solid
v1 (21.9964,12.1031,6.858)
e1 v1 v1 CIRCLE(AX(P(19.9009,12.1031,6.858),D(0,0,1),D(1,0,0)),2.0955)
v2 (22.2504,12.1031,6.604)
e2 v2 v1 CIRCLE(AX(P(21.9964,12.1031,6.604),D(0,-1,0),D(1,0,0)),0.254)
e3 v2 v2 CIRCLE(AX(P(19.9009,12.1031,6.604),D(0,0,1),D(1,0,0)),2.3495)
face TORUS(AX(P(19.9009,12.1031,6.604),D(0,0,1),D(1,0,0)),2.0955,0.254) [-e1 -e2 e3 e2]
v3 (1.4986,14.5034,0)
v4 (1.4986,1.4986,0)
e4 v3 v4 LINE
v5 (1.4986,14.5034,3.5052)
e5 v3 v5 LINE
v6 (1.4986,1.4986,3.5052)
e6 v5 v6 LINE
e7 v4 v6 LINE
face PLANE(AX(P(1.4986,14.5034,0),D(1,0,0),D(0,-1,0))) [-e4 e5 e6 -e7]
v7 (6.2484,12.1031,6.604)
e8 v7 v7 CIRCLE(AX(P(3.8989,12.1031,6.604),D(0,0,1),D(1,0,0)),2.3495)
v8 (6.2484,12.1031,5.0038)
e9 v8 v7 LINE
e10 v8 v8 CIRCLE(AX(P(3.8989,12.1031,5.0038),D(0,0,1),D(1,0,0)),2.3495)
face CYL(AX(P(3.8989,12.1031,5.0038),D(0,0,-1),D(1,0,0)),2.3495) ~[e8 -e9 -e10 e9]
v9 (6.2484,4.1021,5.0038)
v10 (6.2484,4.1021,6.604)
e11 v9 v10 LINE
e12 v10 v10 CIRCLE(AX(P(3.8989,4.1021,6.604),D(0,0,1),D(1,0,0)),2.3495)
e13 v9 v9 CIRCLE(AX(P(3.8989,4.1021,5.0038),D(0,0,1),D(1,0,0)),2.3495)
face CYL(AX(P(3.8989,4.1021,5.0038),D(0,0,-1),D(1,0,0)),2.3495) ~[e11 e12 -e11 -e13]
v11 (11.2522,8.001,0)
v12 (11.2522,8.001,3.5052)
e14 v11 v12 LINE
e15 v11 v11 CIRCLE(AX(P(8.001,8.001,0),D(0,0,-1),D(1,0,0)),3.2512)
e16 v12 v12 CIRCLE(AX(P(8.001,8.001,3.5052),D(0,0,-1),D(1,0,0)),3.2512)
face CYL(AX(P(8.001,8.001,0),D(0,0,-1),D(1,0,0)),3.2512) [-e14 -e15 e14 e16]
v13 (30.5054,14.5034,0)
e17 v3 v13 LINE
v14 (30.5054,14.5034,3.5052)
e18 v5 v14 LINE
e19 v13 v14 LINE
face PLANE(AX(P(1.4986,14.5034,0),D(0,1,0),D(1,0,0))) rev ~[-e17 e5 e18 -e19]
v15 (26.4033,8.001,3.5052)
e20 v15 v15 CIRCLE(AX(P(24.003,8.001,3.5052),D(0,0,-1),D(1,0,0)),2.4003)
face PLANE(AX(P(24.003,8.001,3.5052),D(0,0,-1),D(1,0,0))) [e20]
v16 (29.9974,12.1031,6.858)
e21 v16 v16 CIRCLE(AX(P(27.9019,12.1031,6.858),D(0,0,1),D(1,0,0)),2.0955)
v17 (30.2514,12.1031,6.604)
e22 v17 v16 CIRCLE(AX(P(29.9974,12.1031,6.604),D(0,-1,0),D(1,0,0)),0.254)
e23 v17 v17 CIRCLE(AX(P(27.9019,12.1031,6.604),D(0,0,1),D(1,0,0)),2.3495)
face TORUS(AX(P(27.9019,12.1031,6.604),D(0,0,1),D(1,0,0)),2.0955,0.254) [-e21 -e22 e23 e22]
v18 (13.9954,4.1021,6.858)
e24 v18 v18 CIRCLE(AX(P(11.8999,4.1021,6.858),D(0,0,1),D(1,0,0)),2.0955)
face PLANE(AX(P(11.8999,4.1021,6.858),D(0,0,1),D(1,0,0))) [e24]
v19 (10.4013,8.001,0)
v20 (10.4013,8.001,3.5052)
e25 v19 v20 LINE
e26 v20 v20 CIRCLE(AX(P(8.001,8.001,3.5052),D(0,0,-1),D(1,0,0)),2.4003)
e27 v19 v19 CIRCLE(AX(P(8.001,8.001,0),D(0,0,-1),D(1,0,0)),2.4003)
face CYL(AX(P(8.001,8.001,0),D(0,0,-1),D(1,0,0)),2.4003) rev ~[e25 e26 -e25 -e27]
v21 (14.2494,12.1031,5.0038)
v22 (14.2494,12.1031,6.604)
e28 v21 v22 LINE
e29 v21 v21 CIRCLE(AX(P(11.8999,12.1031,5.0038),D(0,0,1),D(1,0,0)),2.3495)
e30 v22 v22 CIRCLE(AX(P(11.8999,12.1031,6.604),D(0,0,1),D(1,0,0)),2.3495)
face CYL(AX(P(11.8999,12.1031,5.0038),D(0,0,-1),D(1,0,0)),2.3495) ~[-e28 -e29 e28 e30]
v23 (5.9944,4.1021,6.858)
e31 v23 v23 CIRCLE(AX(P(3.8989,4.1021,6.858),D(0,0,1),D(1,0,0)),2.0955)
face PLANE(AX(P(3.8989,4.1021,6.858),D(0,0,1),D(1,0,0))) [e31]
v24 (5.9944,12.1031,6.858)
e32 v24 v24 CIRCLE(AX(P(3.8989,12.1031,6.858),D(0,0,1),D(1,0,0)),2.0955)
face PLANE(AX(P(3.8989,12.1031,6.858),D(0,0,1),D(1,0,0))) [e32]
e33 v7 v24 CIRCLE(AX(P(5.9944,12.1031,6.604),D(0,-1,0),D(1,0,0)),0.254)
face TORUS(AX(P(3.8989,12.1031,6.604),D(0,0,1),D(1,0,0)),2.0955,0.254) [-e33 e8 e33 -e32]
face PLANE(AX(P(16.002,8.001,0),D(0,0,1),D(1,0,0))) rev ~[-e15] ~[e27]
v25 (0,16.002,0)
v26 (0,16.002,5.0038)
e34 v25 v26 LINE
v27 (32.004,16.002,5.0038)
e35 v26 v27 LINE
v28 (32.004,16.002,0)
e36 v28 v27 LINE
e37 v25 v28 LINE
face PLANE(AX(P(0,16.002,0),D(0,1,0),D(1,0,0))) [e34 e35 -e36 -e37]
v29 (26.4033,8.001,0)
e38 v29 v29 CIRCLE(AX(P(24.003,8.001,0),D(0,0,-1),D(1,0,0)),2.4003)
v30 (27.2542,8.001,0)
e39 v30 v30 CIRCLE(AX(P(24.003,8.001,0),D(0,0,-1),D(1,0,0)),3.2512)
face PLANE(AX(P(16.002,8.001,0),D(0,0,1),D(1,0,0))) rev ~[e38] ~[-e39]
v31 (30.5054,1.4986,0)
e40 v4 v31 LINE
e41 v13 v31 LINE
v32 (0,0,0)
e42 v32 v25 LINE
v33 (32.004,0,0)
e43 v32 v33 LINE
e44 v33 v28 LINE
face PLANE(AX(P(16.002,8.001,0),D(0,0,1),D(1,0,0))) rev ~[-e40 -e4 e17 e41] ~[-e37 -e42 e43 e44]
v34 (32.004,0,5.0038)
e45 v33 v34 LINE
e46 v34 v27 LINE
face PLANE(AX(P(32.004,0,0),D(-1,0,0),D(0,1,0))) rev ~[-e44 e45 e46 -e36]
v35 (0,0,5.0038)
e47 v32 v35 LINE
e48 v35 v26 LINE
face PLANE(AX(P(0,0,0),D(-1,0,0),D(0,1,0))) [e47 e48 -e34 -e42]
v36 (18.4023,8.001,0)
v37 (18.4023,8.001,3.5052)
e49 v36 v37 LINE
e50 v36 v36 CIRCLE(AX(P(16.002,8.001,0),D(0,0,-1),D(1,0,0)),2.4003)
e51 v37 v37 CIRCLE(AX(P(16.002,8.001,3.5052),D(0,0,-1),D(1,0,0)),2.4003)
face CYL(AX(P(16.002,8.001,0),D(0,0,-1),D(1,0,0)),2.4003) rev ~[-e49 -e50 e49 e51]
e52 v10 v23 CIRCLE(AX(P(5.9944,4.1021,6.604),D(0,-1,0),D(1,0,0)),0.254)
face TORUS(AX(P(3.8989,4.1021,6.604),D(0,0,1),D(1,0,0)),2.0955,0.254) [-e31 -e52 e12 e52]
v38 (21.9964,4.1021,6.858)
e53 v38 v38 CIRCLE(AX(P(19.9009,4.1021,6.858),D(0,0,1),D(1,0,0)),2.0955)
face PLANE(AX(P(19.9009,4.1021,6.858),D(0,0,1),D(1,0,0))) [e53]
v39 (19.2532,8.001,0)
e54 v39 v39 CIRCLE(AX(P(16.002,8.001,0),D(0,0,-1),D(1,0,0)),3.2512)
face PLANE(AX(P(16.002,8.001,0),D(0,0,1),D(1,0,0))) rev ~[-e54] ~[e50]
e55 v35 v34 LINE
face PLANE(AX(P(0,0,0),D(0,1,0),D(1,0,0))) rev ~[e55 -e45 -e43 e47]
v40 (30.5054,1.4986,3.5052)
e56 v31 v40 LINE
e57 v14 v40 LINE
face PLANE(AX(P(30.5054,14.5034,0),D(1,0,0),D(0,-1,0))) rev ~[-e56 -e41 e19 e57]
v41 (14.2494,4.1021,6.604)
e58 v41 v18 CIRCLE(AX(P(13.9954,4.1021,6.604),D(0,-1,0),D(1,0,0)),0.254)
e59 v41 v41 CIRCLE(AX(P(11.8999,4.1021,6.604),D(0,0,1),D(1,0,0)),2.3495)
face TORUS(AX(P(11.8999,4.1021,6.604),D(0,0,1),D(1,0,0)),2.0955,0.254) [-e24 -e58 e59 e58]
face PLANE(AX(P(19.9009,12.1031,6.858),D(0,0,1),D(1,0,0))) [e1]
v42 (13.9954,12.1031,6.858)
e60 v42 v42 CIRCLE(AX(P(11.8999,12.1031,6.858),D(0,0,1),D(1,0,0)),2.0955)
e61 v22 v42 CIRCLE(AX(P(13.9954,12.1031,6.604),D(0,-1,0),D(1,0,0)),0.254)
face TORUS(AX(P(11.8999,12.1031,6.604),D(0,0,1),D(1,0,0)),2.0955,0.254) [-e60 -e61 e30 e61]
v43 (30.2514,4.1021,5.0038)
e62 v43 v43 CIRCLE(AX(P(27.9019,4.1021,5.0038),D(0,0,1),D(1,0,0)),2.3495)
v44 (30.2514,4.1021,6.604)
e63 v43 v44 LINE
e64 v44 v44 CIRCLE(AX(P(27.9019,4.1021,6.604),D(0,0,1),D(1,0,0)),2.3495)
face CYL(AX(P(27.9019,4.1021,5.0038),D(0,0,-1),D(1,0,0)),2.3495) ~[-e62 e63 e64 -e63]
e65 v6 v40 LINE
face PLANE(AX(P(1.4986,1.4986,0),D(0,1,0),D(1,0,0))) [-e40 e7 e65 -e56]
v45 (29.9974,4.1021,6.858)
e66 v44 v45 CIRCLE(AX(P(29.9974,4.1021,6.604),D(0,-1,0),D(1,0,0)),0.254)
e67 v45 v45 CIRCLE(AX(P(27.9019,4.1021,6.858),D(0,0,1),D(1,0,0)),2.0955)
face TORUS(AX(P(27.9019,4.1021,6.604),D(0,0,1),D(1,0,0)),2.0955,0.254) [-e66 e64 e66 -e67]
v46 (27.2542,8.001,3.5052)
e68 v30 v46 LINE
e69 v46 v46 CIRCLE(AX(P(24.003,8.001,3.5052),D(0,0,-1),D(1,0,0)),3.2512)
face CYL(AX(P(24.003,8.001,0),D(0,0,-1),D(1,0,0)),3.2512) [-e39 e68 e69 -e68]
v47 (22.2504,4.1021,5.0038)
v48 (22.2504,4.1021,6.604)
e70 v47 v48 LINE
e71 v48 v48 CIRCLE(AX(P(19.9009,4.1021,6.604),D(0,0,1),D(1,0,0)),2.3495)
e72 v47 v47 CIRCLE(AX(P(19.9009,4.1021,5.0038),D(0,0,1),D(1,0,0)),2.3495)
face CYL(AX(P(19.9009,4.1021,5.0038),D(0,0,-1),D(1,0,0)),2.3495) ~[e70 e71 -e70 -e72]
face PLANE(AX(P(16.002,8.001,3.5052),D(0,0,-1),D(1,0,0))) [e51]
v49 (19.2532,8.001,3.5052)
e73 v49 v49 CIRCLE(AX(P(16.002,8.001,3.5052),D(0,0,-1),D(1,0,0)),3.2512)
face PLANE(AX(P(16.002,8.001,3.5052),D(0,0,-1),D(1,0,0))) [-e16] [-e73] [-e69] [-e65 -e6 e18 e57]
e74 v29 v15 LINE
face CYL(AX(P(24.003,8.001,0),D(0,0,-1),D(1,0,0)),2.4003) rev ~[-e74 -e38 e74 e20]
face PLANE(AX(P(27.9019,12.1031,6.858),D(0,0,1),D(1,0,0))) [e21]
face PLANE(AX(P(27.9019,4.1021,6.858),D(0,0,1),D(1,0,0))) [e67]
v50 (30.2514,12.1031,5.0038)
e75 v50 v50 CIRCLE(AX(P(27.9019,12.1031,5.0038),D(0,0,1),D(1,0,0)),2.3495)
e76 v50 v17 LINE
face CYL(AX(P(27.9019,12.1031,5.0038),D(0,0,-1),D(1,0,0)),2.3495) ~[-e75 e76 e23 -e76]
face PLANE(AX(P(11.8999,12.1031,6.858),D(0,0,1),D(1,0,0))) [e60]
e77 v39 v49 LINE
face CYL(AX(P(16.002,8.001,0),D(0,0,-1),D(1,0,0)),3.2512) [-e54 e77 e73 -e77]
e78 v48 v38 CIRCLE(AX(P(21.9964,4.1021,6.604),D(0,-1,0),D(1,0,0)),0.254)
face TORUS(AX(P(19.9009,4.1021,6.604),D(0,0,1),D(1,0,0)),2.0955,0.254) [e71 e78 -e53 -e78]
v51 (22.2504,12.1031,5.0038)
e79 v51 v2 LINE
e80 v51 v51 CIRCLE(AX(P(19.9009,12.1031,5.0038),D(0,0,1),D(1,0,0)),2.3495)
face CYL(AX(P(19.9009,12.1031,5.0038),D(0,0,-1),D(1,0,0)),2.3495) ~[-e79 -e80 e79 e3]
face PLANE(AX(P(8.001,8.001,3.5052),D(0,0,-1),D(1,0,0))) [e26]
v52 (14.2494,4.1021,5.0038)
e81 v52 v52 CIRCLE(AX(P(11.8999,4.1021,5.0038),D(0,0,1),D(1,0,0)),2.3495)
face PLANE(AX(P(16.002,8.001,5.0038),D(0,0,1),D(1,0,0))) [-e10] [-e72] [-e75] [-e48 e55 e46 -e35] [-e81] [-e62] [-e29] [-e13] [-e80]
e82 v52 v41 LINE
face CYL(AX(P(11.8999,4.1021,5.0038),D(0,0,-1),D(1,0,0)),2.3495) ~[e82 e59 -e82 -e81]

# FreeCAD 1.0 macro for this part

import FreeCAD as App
import Part
import Sketcher
from FreeCAD import Vector
Q = App.Units.Quantity


def edges_at(feature, points):
    """Names of the edges that pass closest to the given points."""
    edges = feature.Shape.Edges
    near = lambda p: min(range(len(edges)), key=lambda i: edges[i].distToShape(Part.Vertex(*p))[0])
    return sorted({f"Edge{near(p) + 1}" for p in points})


def add_polygon(sketch, points):
    """Adds a closed chain of lines whose ends are joined by coincident constraints."""
    first, n = sketch.GeometryCount, len(points)
    for a, b in zip(points, points[1:] + points[:1]):
        sketch.addGeometry(Part.LineSegment(App.Vector(*a, 0), App.Vector(*b, 0)), False)
    for i in range(n):
        sketch.addConstraint(Sketcher.Constraint("Coincident", first + i, 2, first + (i + 1) % n, 1))

doc = App.newDocument("Part")
body = doc.addObject("PartDesign::Body", "Body")

sketch1 = body.newObject("Sketcher::SketchObject", "Sketch")
sketch1.AttachmentSupport = (doc.getObject("XY_Plane"), [""])
sketch1.MapMode = "FlatFace"
add_polygon(sketch1, [(0, 16), (0, 0), (32, 0), (32, 16)])
sketch1.addConstraint([
    Sketcher.Constraint("Vertical", 0),
    Sketcher.Constraint("Horizontal", 1),
    Sketcher.Constraint("Vertical", 2),
    Sketcher.Constraint("Horizontal", 3),
    Sketcher.Constraint("Coincident", 0, 2, -1, 1),
    Sketcher.Constraint("DistanceX", 1, 1, 1, 2, Q("1.26 in")),
    Sketcher.Constraint("DistanceY", 0, 2, 0, 1, Q("0.63 in")),
])
pad1 = body.newObject("PartDesign::Pad", "Pad")
pad1.Profile = sketch1
pad1.Length = Q("0.197 in")

sketch2 = body.newObject("Sketcher::SketchObject", "Sketch001")
sketch2.AttachmentSupport = (doc.getObject("XY_Plane"), [""])
sketch2.MapMode = "FlatFace"
sketch2.AttachmentOffset = App.Placement(Vector(0, 0, 0.197 * 25.4), App.Rotation())
sketch2.addGeometry([
    Part.Circle(Vector(3.9, 4.1, 0), Vector(0, 0, 1), 2.3),
    Part.Circle(Vector(11.9, 4.1, 0), Vector(0, 0, 1), 2.3),
    Part.Circle(Vector(19.9, 4.1, 0), Vector(0, 0, 1), 2.3),
    Part.Circle(Vector(3.9, 12.1, 0), Vector(0, 0, 1), 2.3),
    Part.Circle(Vector(11.9, 12.1, 0), Vector(0, 0, 1), 2.3),
    Part.Circle(Vector(19.9, 12.1, 0), Vector(0, 0, 1), 2.3),
    Part.Circle(Vector(27.9, 12.1, 0), Vector(0, 0, 1), 2.3),
    Part.Circle(Vector(27.9, 4.1, 0), Vector(0, 0, 1), 2.3),
], False)
sketch2.addConstraint([
    Sketcher.Constraint("Equal", 0, 1),
    Sketcher.Constraint("Equal", 1, 2),
    Sketcher.Constraint("Equal", 2, 3),
    Sketcher.Constraint("Equal", 3, 4),
    Sketcher.Constraint("Equal", 4, 5),
    Sketcher.Constraint("Equal", 5, 6),
    Sketcher.Constraint("Equal", 6, 7),
    Sketcher.Constraint("Horizontal", 0, 3, 1, 3),
    Sketcher.Constraint("Horizontal", 1, 3, 2, 3),
    Sketcher.Constraint("Horizontal", 3, 3, 4, 3),
    Sketcher.Constraint("Horizontal", 4, 3, 5, 3),
    Sketcher.Constraint("Horizontal", 5, 3, 6, 3),
    Sketcher.Constraint("Horizontal", 2, 3, 7, 3),
    Sketcher.Constraint("Vertical", 0, 3, 3, 3),
    Sketcher.Constraint("Vertical", 1, 3, 4, 3),
    Sketcher.Constraint("Vertical", 2, 3, 5, 3),
    Sketcher.Constraint("Vertical", 6, 3, 7, 3),
    Sketcher.Constraint("Diameter", 0, Q("0.185 in")),
    Sketcher.Constraint("DistanceX", 0, 3, 2, 3, Q("0.63 in")),
    Sketcher.Constraint("DistanceX", 4, 3, 6, 3, Q("0.63 in")),
    Sketcher.Constraint("DistanceX", 0, 3, 1, 3, Q("0.315 in")),
    Sketcher.Constraint("DistanceY", 0, 3, 3, 3, Q("0.315 in")),
    Sketcher.Constraint("DistanceX", -1, 1, 0, 3, Q("0.1535 in")),
    Sketcher.Constraint("DistanceY", -1, 1, 0, 3, Q("0.1615 in")),
])
pad2 = body.newObject("PartDesign::Pad", "Pad001")
pad2.Profile = sketch2
pad2.Length = Q("0.073 in")
doc.recompute()

fillet = body.newObject("PartDesign::Fillet", "Fillet")
fillet.Base = (pad2, edges_at(pad2, [
    (1.549, 4.102, 6.858),
    (9.55, 4.102, 6.858),
    (17.551, 4.102, 6.858),
    (25.552, 4.102, 6.858),
    (25.552, 12.103, 6.858),
    (17.551, 12.103, 6.858),
    (9.55, 12.103, 6.858),
    (1.549, 12.103, 6.858),
]))
fillet.Radius = Q("0.01 in")

sketch3 = body.newObject("Sketcher::SketchObject", "Sketch002")
sketch3.AttachmentSupport = (doc.getObject("XY_Plane"), [""])
sketch3.MapMode = "FlatFace"
add_polygon(sketch3, [(1.5, 1.5), (1.5, 14.5), (30.5, 14.5), (30.5, 1.5)])
sketch3.addGeometry(Part.Circle(Vector(8, 8, 0), Vector(0, 0, 1), 3.3), False)
sketch3.addGeometry(Part.Circle(Vector(16, 8, 0), Vector(0, 0, 1), 3.3), False)
sketch3.addGeometry(Part.Circle(Vector(24, 8, 0), Vector(0, 0, 1), 3.3), False)
sketch3.addGeometry(Part.Circle(Vector(24, 8, 0), Vector(0, 0, 1), 2.4), False)
sketch3.addGeometry(Part.Circle(Vector(16, 8, 0), Vector(0, 0, 1), 2.4), False)
sketch3.addGeometry(Part.Circle(Vector(8, 8, 0), Vector(0, 0, 1), 2.4), False)
sketch3.addConstraint([
    Sketcher.Constraint("Vertical", 0),
    Sketcher.Constraint("Horizontal", 1),
    Sketcher.Constraint("Vertical", 2),
    Sketcher.Constraint("Horizontal", 3),
    Sketcher.Constraint("Coincident", 7, 3, 6, 3),
    Sketcher.Constraint("Coincident", 8, 3, 5, 3),
    Sketcher.Constraint("Coincident", 9, 3, 4, 3),
    Sketcher.Constraint("Equal", 4, 5),
    Sketcher.Constraint("Equal", 5, 6),
    Sketcher.Constraint("Equal", 7, 8),
    Sketcher.Constraint("Equal", 8, 9),
    Sketcher.Constraint("Horizontal", 4, 3, 5, 3),
    Sketcher.Constraint("Horizontal", 5, 3, 6, 3),
    Sketcher.Constraint("Diameter", 4, Q("0.256 in")),
    Sketcher.Constraint("Diameter", 7, Q("0.189 in")),
    Sketcher.Constraint("DistanceX", 1, 1, 1, 2, Q("1.142 in")),
    Sketcher.Constraint("DistanceY", 0, 1, 0, 2, Q("0.512 in")),
    Sketcher.Constraint("DistanceX", -1, 1, 5, 3, Q("0.63 in")),
    Sketcher.Constraint("DistanceX", 4, 3, 6, 3, Q("0.63 in")),
    Sketcher.Constraint("DistanceX", -1, 1, 4, 3, Q("0.315 in")),
    Sketcher.Constraint("DistanceY", -1, 1, 4, 3, Q("0.315 in")),
    Sketcher.Constraint("DistanceX", -1, 1, 0, 2, Q("0.059 in")),
    Sketcher.Constraint("DistanceY", -1, 1, 0, 2, Q("0.571 in")),
])
pocket1 = body.newObject("PartDesign::Pocket", "Pocket")
pocket1.Profile = sketch3
pocket1.Length = Q("0.138 in")
pocket1.Reversed = True

doc.recompute()
